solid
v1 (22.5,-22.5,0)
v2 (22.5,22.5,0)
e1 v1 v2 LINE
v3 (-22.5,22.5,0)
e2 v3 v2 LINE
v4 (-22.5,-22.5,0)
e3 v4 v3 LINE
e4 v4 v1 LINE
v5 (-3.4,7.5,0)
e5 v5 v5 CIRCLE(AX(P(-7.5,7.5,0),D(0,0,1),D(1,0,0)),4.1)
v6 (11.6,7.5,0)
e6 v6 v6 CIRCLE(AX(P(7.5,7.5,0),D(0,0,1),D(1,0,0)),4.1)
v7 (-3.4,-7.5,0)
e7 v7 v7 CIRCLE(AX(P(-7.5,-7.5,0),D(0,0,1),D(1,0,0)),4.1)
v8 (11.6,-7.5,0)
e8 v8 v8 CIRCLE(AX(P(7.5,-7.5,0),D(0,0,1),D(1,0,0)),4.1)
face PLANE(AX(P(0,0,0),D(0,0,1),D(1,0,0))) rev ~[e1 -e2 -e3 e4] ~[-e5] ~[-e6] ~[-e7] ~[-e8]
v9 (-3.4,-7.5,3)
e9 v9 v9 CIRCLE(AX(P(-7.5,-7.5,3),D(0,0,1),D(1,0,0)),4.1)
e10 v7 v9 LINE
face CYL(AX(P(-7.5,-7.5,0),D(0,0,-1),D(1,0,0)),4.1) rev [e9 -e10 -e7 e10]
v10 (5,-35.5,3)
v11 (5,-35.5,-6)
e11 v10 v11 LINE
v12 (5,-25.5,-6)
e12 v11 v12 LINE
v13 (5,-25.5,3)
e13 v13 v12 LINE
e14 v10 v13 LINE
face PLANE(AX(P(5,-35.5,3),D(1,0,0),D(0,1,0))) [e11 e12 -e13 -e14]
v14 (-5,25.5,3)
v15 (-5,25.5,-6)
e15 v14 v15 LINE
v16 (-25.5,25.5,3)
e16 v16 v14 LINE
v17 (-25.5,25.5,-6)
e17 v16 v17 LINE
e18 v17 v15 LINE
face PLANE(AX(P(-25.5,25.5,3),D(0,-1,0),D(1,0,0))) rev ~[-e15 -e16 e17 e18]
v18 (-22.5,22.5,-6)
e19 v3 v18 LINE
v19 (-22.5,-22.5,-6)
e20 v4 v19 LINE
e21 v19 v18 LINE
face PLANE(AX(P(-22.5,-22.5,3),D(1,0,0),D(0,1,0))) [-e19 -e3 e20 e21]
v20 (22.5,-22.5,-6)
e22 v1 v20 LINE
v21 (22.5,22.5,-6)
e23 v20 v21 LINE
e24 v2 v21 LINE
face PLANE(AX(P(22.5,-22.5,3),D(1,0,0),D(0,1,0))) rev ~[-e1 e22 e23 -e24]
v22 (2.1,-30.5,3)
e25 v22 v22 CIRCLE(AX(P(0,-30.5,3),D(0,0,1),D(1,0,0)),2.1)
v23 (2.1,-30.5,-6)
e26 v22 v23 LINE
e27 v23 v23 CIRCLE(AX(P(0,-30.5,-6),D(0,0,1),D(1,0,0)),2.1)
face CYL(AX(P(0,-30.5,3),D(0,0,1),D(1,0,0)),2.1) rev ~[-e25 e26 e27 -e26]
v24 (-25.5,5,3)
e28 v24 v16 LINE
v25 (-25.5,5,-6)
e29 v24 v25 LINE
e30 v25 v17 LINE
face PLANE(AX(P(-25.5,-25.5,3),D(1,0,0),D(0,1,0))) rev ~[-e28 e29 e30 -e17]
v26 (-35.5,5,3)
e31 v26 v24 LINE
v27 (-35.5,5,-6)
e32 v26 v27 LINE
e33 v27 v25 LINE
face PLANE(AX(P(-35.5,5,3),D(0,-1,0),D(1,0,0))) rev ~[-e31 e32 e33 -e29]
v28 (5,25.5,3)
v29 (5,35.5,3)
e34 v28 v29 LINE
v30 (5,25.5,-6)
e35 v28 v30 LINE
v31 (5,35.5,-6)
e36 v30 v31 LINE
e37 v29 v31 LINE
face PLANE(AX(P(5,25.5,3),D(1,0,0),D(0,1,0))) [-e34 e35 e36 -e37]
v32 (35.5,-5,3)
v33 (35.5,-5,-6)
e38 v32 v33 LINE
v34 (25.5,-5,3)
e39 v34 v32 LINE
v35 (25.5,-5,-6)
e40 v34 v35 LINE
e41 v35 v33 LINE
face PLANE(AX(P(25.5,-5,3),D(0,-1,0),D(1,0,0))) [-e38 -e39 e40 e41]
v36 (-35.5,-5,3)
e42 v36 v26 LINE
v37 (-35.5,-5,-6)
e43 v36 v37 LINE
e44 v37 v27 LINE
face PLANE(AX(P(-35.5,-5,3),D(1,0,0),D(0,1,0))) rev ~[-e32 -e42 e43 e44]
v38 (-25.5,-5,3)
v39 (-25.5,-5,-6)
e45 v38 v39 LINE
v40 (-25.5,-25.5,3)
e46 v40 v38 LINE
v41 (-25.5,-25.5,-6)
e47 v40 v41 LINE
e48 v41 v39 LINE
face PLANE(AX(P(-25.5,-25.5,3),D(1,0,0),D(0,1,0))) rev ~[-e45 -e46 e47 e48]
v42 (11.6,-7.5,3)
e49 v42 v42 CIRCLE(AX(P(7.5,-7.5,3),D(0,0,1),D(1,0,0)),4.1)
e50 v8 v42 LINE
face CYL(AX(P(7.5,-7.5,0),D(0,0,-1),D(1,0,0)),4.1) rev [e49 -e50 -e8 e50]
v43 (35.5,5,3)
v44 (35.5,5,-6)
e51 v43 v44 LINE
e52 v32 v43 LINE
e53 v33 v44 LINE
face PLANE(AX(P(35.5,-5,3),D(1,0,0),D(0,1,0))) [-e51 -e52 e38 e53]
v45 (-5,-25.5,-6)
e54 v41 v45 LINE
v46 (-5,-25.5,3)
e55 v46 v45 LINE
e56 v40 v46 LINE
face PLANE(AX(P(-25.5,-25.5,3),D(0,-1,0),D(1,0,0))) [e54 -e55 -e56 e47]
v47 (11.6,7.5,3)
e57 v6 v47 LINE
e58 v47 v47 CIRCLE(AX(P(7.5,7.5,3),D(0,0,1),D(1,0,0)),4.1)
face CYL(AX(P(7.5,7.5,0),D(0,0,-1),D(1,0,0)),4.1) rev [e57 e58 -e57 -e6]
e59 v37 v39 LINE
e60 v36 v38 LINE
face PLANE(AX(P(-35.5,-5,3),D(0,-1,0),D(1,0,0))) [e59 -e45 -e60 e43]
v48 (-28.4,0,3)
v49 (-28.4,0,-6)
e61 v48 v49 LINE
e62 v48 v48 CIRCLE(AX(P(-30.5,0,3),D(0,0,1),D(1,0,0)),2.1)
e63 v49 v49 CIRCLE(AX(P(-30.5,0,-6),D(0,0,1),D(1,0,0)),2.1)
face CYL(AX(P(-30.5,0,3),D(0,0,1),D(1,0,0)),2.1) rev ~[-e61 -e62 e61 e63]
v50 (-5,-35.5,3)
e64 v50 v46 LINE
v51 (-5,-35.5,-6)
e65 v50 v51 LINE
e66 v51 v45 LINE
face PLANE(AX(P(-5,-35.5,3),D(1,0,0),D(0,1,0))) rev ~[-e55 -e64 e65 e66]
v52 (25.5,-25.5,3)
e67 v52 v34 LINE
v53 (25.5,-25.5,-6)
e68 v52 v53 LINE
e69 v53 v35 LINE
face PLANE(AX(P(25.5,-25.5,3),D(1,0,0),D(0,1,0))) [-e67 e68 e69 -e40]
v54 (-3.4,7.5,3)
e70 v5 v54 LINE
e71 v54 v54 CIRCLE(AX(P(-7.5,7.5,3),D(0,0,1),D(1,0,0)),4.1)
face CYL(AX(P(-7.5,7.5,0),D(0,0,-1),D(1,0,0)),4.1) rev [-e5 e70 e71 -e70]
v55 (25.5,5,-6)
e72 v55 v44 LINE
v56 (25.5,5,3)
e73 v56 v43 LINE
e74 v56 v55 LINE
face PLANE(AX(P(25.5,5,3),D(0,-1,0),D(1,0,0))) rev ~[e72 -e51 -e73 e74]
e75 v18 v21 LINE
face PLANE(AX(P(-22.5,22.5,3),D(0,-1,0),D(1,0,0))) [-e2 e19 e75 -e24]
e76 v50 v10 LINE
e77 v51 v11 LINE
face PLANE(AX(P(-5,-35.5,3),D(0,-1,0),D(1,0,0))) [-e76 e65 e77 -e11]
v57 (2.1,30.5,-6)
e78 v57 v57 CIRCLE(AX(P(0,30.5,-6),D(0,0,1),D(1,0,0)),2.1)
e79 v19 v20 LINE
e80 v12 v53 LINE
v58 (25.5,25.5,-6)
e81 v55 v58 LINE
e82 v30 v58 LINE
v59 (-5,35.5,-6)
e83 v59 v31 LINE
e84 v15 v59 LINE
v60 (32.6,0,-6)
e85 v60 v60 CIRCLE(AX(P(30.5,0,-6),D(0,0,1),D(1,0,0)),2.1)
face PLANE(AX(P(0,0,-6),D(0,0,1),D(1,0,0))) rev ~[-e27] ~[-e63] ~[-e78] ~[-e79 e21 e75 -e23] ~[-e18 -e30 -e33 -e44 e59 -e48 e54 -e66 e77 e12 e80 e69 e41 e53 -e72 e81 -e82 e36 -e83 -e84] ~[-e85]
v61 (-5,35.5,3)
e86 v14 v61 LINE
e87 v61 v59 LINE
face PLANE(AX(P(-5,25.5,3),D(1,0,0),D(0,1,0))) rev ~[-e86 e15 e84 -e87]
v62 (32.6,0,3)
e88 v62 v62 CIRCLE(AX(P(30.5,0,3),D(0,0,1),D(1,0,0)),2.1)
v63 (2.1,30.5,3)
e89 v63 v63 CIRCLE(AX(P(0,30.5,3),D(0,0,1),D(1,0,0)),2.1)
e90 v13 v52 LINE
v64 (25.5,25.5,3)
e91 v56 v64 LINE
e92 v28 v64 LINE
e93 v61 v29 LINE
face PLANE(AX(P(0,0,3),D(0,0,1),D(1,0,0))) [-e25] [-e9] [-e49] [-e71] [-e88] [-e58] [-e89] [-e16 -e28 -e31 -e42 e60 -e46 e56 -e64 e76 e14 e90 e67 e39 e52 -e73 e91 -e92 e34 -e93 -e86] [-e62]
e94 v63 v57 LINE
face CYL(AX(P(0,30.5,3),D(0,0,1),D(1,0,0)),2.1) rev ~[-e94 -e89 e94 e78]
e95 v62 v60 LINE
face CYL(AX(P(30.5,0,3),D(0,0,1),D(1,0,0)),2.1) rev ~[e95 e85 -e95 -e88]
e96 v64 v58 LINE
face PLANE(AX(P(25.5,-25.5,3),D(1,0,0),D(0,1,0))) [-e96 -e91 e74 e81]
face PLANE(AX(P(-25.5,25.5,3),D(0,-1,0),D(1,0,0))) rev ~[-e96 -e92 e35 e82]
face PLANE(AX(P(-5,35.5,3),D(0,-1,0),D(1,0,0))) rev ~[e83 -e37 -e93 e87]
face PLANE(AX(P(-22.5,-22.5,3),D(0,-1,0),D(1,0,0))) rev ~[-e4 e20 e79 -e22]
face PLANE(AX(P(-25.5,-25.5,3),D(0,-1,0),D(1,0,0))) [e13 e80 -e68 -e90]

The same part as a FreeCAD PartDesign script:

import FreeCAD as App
import Part
import Sketcher
from FreeCAD import Vector
Q = App.Units.Quantity


def add_polygon(sketch, points):
    """Adds a closed chain of lines whose ends are joined by coincident constraints."""
    first, n = sketch.GeometryCount, len(points)
    for a, b in zip(points, points[1:] + points[:1]):
        sketch.addGeometry(Part.LineSegment(App.Vector(*a, 0), App.Vector(*b, 0)), False)
    for i in range(n):
        sketch.addConstraint(Sketcher.Constraint("Coincident", first + i, 2, first + (i + 1) % n, 1))

doc = App.newDocument("Part")
params = doc.addObject("Spreadsheet::Sheet", "Params")
for row, (alias, value) in enumerate([
    ("sketch1_diameter", "8.2 mm"),
    ("sketch1_width", "45 mm"),
    ("pad1_length", "3 mm"),
    ("sketch2_width", "51 mm"),
    ("sketch2_width2", "45 mm"),
    ("pad2_length", "9 mm"),
    ("sketch3_diameter", "4.2 mm"),
    ("sketch3_width", "10 mm"),
    ("pad3_length", "9 mm"),
], start=1):
    params.set(f"A{row}", alias)
    params.set(f"B{row}", "=" + value)
    params.setAlias(f"B{row}", alias)

body = doc.addObject("PartDesign::Body", "Body")

# Sketch on XY plane
sketch1 = body.newObject("Sketcher::SketchObject", "Sketch")
sketch1.AttachmentSupport = (doc.getObject("XY_Plane"), [""])
sketch1.MapMode = "FlatFace"
add_polygon(sketch1, [(-22.5, 22.5), (-22.5, -22.5), (22.5, -22.5), (22.5, 22.5)])  # lines 0-3
sketch1.addGeometry(Part.Circle(Vector(-7.5, -7.5, 0), Vector(0, 0, 1), 4.1), False)  # 4
sketch1.addGeometry(Part.Circle(Vector(7.5, -7.5, 0), Vector(0, 0, 1), 4.1), False)  # 5
sketch1.addGeometry(Part.Circle(Vector(-7.5, 7.5, 0), Vector(0, 0, 1), 4.1), False)  # 6
sketch1.addGeometry(Part.Circle(Vector(7.5, 7.5, 0), Vector(0, 0, 1), 4.1), False)  # 7
sketch1.addConstraint([
    Sketcher.Constraint("Vertical", 0),
    Sketcher.Constraint("Horizontal", 1),
    Sketcher.Constraint("Vertical", 2),
    Sketcher.Constraint("Horizontal", 3),
    Sketcher.Constraint("Equal", 4, 5),
    Sketcher.Constraint("Equal", 5, 6),
    Sketcher.Constraint("Equal", 6, 7),
    Sketcher.Constraint("Symmetric", 5, 3, 6, 3, -1, 1),
    Sketcher.Constraint("Symmetric", 4, 3, 7, 3, -1, 1),
    Sketcher.Constraint("Symmetric", 0, 2, 2, 2, -1, 1),
    Sketcher.Constraint("Symmetric", 4, 3, 5, 3, -2),
    Sketcher.Constraint("Equal", 3, 0),
    Sketcher.Constraint("Diameter", 4, Q("8.2 mm")),
    Sketcher.Constraint("DistanceX", 1, 1, 1, 2, Q("45 mm")),
    Sketcher.Constraint("DistanceX", 4, 3, 5, 3, Q("15 mm")),
    Sketcher.Constraint("DistanceY", 4, 3, 6, 3, Q("15 mm")),
])
sketch1.setExpression("Constraints[16]", "Params.sketch1_diameter")
sketch1.setExpression("Constraints[17]", "Params.sketch1_width")
pad1 = body.newObject("PartDesign::Pad", "Pad")
pad1.Profile = sketch1
pad1.setExpression("Length", "Params.pad1_length")

# Sketch on XY plane
sketch2 = body.newObject("Sketcher::SketchObject", "Sketch001")
sketch2.AttachmentSupport = (doc.getObject("XY_Plane"), [""])
sketch2.MapMode = "FlatFace"
sketch2.AttachmentOffset = App.Placement(Vector(0, 0, 3), App.Rotation())
add_polygon(sketch2, [(-25.5, 25.5), (-25.5, -25.5), (25.5, -25.5), (25.5, 25.5)])  # lines 0-3
add_polygon(sketch2, [(22.5, -22.5), (-22.5, -22.5), (-22.5, 22.5), (22.5, 22.5)])  # lines 4-7
sketch2.addConstraint([
    Sketcher.Constraint("Vertical", 0),
    Sketcher.Constraint("Horizontal", 1),
    Sketcher.Constraint("Vertical", 2),
    Sketcher.Constraint("Horizontal", 3),
    Sketcher.Constraint("Horizontal", 4),
    Sketcher.Constraint("Vertical", 5),
    Sketcher.Constraint("Horizontal", 6),
    Sketcher.Constraint("Vertical", 7),
    Sketcher.Constraint("Symmetric", 0, 2, 2, 2, -1, 1),
    Sketcher.Constraint("Symmetric", 4, 2, 6, 2, -1, 1),
    Sketcher.Constraint("Equal", 3, 0),
    Sketcher.Constraint("Equal", 6, 5),
    Sketcher.Constraint("DistanceX", 1, 1, 1, 2, Q("51 mm")),
    Sketcher.Constraint("DistanceX", 4, 2, 4, 1, Q("45 mm")),
])
sketch2.setExpression("Constraints[20]", "Params.sketch2_width")
sketch2.setExpression("Constraints[21]", "Params.sketch2_width2")
pad2 = body.newObject("PartDesign::Pad", "Pad001")
pad2.Profile = sketch2
pad2.setExpression("Length", "Params.pad2_length")
pad2.Reversed = True

# Sketch on XY plane
sketch3 = body.newObject("Sketcher::SketchObject", "Sketch002")
sketch3.AttachmentSupport = (doc.getObject("XY_Plane"), [""])
sketch3.MapMode = "FlatFace"
sketch3.AttachmentOffset = App.Placement(Vector(0, 0, 3), App.Rotation())
add_polygon(sketch3, [(-5, 35.5), (-5, 25.5), (5, 25.5), (5, 35.5)])  # lines 0-3
sketch3.addGeometry(Part.Circle(Vector(0, 30.5, 0), Vector(0, 0, 1), 2.1), False)  # 4
add_polygon(sketch3, [(-35.5, 5), (-35.5, -5), (-25.5, -5), (-25.5, 5)])  # lines 5-8
sketch3.addGeometry(Part.Circle(Vector(-30.5, 0, 0), Vector(0, 0, 1), 2.1), False)  # 9
add_polygon(sketch3, [(-5, -25.5), (-5, -35.5), (5, -35.5), (5, -25.5)])  # lines 10-13
sketch3.addGeometry(Part.Circle(Vector(0, -30.5, 0), Vector(0, 0, 1), 2.1), False)  # 14
add_polygon(sketch3, [(25.5, 5), (25.5, -5), (35.5, -5), (35.5, 5)])  # lines 15-18
sketch3.addGeometry(Part.Circle(Vector(30.5, 0, 0), Vector(0, 0, 1), 2.1), False)  # 19
sketch3.addConstraint([
    Sketcher.Constraint("Vertical", 0),
    Sketcher.Constraint("Horizontal", 1),
    Sketcher.Constraint("Vertical", 2),
    Sketcher.Constraint("Horizontal", 3),
    Sketcher.Constraint("Vertical", 5),
    Sketcher.Constraint("Horizontal", 6),
    Sketcher.Constraint("Vertical", 7),
    Sketcher.Constraint("Horizontal", 8),
    Sketcher.Constraint("Vertical", 10),
    Sketcher.Constraint("Horizontal", 11),
    Sketcher.Constraint("Vertical", 12),
    Sketcher.Constraint("Horizontal", 13),
    Sketcher.Constraint("Vertical", 15),
    Sketcher.Constraint("Horizontal", 16),
    Sketcher.Constraint("Vertical", 17),
    Sketcher.Constraint("Horizontal", 18),
    Sketcher.Constraint("Equal", 4, 9),
    Sketcher.Constraint("Equal", 9, 14),
    Sketcher.Constraint("Equal", 14, 19),
    Sketcher.Constraint("Symmetric", 4, 3, 14, 3, -1, 1),
    Sketcher.Constraint("Symmetric", 9, 3, 19, 3, -1, 1),
    Sketcher.Constraint("Symmetric", 2, 2, 10, 2, -1, 1),
    Sketcher.Constraint("Symmetric", 0, 2, 12, 2, -1, 1),
    Sketcher.Constraint("Symmetric", 7, 2, 15, 2, -1, 1),
    Sketcher.Constraint("Symmetric", 5, 2, 17, 2, -1, 1),
    Sketcher.Constraint("PointOnObject", 4, 3, -2),
    Sketcher.Constraint("PointOnObject", 9, 3, -1),
    Sketcher.Constraint("Horizontal", 6, 2, 15, 2),
    Sketcher.Constraint("Vertical", 3, 2, 10, 2),
    Sketcher.Constraint("Equal", 3, 6),
    Sketcher.Constraint("Equal", 18, 0),
    Sketcher.Constraint("Equal", 2, 5),
    Sketcher.Constraint("Diameter", 4, Q("4.2 mm")),
    Sketcher.Constraint("DistanceX", 1, 1, 1, 2, Q("10 mm")),
    Sketcher.Constraint("DistanceY", 14, 3, 4, 3, Q("61 mm")),
    Sketcher.Constraint("DistanceX", 9, 3, 19, 3, Q("61 mm")),
    Sketcher.Constraint("DistanceY", 0, 2, 4, 3, Q("5 mm")),
    Sketcher.Constraint("DistanceX", 5, 2, 9, 3, Q("5 mm")),
])
sketch3.setExpression("Constraints[48]", "Params.sketch3_diameter")
sketch3.setExpression("Constraints[49]", "Params.sketch3_width")
pad3 = body.newObject("PartDesign::Pad", "Pad002")
pad3.Profile = sketch3
pad3.setExpression("Length", "Params.pad3_length")
pad3.Reversed = True

doc.recompute()
